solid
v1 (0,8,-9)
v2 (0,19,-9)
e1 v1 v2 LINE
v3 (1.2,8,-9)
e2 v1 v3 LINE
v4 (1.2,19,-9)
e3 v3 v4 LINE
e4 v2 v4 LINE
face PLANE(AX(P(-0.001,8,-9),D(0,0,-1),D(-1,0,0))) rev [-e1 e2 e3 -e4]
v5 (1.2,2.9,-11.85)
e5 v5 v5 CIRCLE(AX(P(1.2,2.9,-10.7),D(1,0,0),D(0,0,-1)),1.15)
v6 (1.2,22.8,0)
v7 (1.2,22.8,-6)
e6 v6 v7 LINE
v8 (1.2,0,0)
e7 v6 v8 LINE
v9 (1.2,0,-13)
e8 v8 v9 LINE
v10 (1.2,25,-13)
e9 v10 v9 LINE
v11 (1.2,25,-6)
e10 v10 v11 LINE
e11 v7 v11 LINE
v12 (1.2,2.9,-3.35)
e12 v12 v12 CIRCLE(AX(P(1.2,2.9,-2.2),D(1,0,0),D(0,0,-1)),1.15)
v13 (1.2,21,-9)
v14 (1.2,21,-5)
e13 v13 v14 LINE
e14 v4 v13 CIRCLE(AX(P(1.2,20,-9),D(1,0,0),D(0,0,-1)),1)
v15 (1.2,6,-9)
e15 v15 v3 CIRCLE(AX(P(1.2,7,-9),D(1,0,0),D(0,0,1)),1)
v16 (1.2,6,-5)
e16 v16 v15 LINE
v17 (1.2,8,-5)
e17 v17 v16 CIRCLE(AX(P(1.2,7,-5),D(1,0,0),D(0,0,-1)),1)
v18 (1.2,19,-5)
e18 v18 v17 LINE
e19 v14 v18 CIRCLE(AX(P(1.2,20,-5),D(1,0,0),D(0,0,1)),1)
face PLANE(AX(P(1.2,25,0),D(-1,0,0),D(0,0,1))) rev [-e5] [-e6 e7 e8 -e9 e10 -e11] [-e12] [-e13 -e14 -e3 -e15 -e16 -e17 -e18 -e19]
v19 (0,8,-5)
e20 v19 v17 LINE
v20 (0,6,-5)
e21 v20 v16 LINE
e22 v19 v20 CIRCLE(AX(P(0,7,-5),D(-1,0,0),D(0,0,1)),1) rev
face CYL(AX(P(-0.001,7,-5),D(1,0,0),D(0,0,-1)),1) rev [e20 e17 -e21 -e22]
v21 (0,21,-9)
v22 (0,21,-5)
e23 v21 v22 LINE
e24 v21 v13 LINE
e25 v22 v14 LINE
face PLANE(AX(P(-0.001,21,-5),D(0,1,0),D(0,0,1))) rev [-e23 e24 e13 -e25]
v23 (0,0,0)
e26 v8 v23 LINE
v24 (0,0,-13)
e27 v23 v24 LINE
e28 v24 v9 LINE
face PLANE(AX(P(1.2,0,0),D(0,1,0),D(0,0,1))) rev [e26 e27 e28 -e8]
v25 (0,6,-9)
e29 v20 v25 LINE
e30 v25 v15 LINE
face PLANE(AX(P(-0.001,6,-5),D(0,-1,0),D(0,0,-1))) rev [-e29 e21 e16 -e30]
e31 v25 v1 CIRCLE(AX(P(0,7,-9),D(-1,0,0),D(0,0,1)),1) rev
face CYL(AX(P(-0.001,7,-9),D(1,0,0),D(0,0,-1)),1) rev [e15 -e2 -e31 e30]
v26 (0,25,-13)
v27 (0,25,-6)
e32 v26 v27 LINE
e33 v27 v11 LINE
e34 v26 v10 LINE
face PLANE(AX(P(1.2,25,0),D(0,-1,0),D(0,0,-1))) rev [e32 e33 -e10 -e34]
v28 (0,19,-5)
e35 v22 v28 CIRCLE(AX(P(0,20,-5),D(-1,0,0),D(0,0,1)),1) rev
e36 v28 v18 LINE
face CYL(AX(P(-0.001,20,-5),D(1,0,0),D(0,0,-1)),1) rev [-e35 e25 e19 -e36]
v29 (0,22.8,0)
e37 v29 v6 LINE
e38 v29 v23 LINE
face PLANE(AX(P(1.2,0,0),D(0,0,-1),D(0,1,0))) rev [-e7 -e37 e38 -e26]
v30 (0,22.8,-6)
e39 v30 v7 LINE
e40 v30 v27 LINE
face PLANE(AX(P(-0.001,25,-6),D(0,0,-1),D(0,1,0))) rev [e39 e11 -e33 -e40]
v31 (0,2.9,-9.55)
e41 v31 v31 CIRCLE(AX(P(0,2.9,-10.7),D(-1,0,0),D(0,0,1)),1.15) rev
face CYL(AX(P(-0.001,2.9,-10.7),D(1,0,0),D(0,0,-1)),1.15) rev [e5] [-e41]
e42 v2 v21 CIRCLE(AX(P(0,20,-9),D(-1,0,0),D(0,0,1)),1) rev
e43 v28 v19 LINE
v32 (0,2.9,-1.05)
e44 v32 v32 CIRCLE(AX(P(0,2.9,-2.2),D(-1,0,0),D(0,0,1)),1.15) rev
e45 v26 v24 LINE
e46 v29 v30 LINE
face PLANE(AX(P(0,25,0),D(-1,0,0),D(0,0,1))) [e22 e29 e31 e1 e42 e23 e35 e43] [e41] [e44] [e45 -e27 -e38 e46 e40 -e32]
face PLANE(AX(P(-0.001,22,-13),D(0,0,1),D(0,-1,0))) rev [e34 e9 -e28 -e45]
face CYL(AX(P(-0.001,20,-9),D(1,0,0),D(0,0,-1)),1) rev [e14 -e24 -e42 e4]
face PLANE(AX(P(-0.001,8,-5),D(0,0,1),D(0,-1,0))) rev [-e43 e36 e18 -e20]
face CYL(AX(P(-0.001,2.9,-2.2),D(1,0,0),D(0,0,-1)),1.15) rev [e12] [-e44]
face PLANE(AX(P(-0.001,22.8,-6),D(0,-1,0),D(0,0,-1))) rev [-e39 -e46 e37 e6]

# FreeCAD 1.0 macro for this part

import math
import FreeCAD as App
import Part
import Sketcher
from FreeCAD import Vector


def add_polygon(sketch, points):
    """Adds a closed chain of lines whose ends are joined by coincident constraints."""
    first, n = sketch.GeometryCount, len(points)
    for a, b in zip(points, points[1:] + points[:1]):
        sketch.addGeometry(Part.LineSegment(App.Vector(*a, 0), App.Vector(*b, 0)), False)
    for i in range(n):
        sketch.addConstraint(Sketcher.Constraint("Coincident", first + i, 2, first + (i + 1) % n, 1))

doc = App.newDocument("Part")
body = doc.addObject("PartDesign::Body", "Body")

sketch1 = doc.addObject("Sketcher::SketchObject", "Sketch")
body.addObject(sketch1)
sketch1.AttachmentSupport = (doc.YZ_Plane, [""])
sketch1.MapMode = "FlatFace"
add_polygon(sketch1, [(25, 0), (0, 0), (0, -15), (25, -15)])
sketch1.addConstraint(Sketcher.Constraint("Horizontal", 0))
sketch1.addConstraint(Sketcher.Constraint("Vertical", 1))
sketch1.addConstraint(Sketcher.Constraint("Horizontal", 2))
sketch1.addConstraint(Sketcher.Constraint("Vertical", 3))
sketch1.addConstraint(Sketcher.Constraint("Coincident", 0, 2, -1, 1))
sketch1.addConstraint(Sketcher.Constraint("DistanceX", 0, 2, 0, 1, 25.0))
sketch1.addConstraint(Sketcher.Constraint("DistanceY", 1, 2, 1, 1, 15.0))
pad1 = doc.addObject("PartDesign::Pad", "Pad")
body.addObject(pad1)
pad1.Profile = sketch1
pad1.Length = 1.2

sketch2 = doc.addObject("Sketcher::SketchObject", "Sketch001")
body.addObject(sketch2)
sketch2.AttachmentSupport = (doc.YZ_Plane, [""])
sketch2.MapMode = "FlatFace"
sketch2.AttachmentOffset = App.Placement(Vector(0, 0, 1.2), App.Rotation())
sketch2.addGeometry(Part.Circle(Vector(2.9, -10.7, 0), Vector(0, 0, 1), 1.1), False)
sketch2.addConstraint(Sketcher.Constraint("Diameter", 0, 2.3))
sketch2.addConstraint(Sketcher.Constraint("DistanceX", -1, 1, 0, 3, 2.9))
sketch2.addConstraint(Sketcher.Constraint("DistanceY", 0, 3, -1, 1, 10.7))
pocket1 = doc.addObject("PartDesign::Pocket", "Pocket")
body.addObject(pocket1)
pocket1.Profile = sketch2
pocket1.Type = "UpToFirst"

sketch3 = doc.addObject("Sketcher::SketchObject", "Sketch002")
body.addObject(sketch3)
sketch3.AttachmentSupport = (doc.YZ_Plane, [""])
sketch3.MapMode = "FlatFace"
sketch3.AttachmentOffset = App.Placement(Vector(0, 0, 1.2), App.Rotation())
sketch3.addGeometry(Part.Circle(Vector(2.9, -2.2, 0), Vector(0, 0, 1), 1.1), False)
sketch3.addConstraint(Sketcher.Constraint("Diameter", 0, 2.3))
sketch3.addConstraint(Sketcher.Constraint("DistanceX", -1, 1, 0, 3, 2.9))
sketch3.addConstraint(Sketcher.Constraint("DistanceY", 0, 3, -1, 1, 2.2))
pocket2 = doc.addObject("PartDesign::Pocket", "Pocket001")
body.addObject(pocket2)
pocket2.Profile = sketch3
pocket2.Type = "UpToFirst"

sketch4 = doc.addObject("Sketcher::SketchObject", "Sketch003")
body.addObject(sketch4)
sketch4.AttachmentSupport = (doc.YZ_Plane, [""])
sketch4.MapMode = "FlatFace"
sketch4.AttachmentOffset = App.Placement(Vector(0, 0, 1.2), App.Rotation())
add_polygon(sketch4, [(25, 0), (22.8, 0), (22.8, -6), (25, -6)])
sketch4.addConstraint(Sketcher.Constraint("Horizontal", 0))
sketch4.addConstraint(Sketcher.Constraint("Vertical", 1))
sketch4.addConstraint(Sketcher.Constraint("Horizontal", 2))
sketch4.addConstraint(Sketcher.Constraint("Vertical", 3))
sketch4.addConstraint(Sketcher.Constraint("PointOnObject", 0, 2, -1))
sketch4.addConstraint(Sketcher.Constraint("DistanceY", 1, 2, 1, 1, 6.0))
sketch4.addConstraint(Sketcher.Constraint("DistanceX", 0, 2, 0, 1, 2.2))
sketch4.addConstraint(Sketcher.Constraint("DistanceX", -1, 1, 2, 2, 25.0))
pocket3 = doc.addObject("PartDesign::Pocket", "Pocket002")
body.addObject(pocket3)
pocket3.Profile = sketch4
pocket3.Type = "UpToFirst"

sketch5 = doc.addObject("Sketcher::SketchObject", "Sketch004")
body.addObject(sketch5)
sketch5.AttachmentSupport = (doc.YZ_Plane, [""])
sketch5.MapMode = "FlatFace"
sketch5.AttachmentOffset = App.Placement(Vector(0, 0, 1.2), App.Rotation())
sketch5.addGeometry(Part.LineSegment(Vector(6, -5, 0), Vector(6, -9, 0)), False)
sketch5.addGeometry(Part.ArcOfCircle(Part.Circle(Vector(7, -9, 0), Vector(0, 0, 1), 1), math.radians(180), math.radians(360)), False)
sketch5.addGeometry(Part.LineSegment(Vector(8, -9, 0), Vector(19, -9, 0)), False)
sketch5.addGeometry(Part.ArcOfCircle(Part.Circle(Vector(20, -9, 0), Vector(0, 0, 1), 1), math.radians(180), math.radians(360)), False)
sketch5.addGeometry(Part.LineSegment(Vector(21, -9, 0), Vector(21, -5, 0)), False)
sketch5.addGeometry(Part.ArcOfCircle(Part.Circle(Vector(20, -5, 0), Vector(0, 0, 1), 1), math.radians(0), math.radians(180)), False)
sketch5.addGeometry(Part.LineSegment(Vector(19, -5, 0), Vector(8, -5, 0)), False)
sketch5.addGeometry(Part.ArcOfCircle(Part.Circle(Vector(7, -5, 0), Vector(0, 0, 1), 1), math.radians(0), math.radians(180)), False)
sketch5.addConstraint(Sketcher.Constraint("Tangent", 0, 2, 1, 1))
sketch5.addConstraint(Sketcher.Constraint("Coincident", 1, 2, 2, 1))
sketch5.addConstraint(Sketcher.Constraint("Coincident", 2, 2, 3, 1))
sketch5.addConstraint(Sketcher.Constraint("Tangent", 3, 2, 4, 1))
sketch5.addConstraint(Sketcher.Constraint("Tangent", 4, 2, 5, 1))
sketch5.addConstraint(Sketcher.Constraint("Coincident", 5, 2, 6, 1))
sketch5.addConstraint(Sketcher.Constraint("Coincident", 6, 2, 7, 1))
sketch5.addConstraint(Sketcher.Constraint("Tangent", 7, 2, 0, 1))
sketch5.addConstraint(Sketcher.Constraint("Vertical", 0))
sketch5.addConstraint(Sketcher.Constraint("Horizontal", 2))
sketch5.addConstraint(Sketcher.Constraint("Vertical", 4))
sketch5.addConstraint(Sketcher.Constraint("Horizontal", 6))
sketch5.addConstraint(Sketcher.Constraint("Equal", 1, 3))
sketch5.addConstraint(Sketcher.Constraint("Equal", 3, 5))
sketch5.addConstraint(Sketcher.Constraint("Equal", 5, 7))
sketch5.addConstraint(Sketcher.Constraint("Horizontal", 1, 3, 3, 3))
sketch5.addConstraint(Sketcher.Constraint("Horizontal", 5, 3, 7, 3))
sketch5.addConstraint(Sketcher.Constraint("Horizontal", 0, 2, 1, 2))
sketch5.addConstraint(Sketcher.Constraint("Horizontal", 4, 2, 5, 2))
sketch5.addConstraint(Sketcher.Constraint("Radius", 1, 1.0))
sketch5.addConstraint(Sketcher.Constraint("DistanceX", 2, 1, 2, 2, 11.0))
sketch5.addConstraint(Sketcher.Constraint("DistanceY", 0, 2, 0, 1, 4.0))
sketch5.addConstraint(Sketcher.Constraint("DistanceX", -1, 1, 1, 3, 7.0))
sketch5.addConstraint(Sketcher.Constraint("DistanceY", 1, 3, -1, 1, 9.0))
pocket4 = doc.addObject("PartDesign::Pocket", "Pocket003")
body.addObject(pocket4)
pocket4.Profile = sketch5
pocket4.Type = "UpToFirst"

sketch6 = doc.addObject("Sketcher::SketchObject", "Sketch005")
body.addObject(sketch6)
sketch6.AttachmentSupport = (doc.YZ_Plane, [""])
sketch6.MapMode = "FlatFace"
sketch6.AttachmentOffset = App.Placement(Vector(0, 0, 1.2), App.Rotation())
add_polygon(sketch6, [(22, -13), (5, -13), (5, -15), (22, -15)])
sketch6.addConstraint(Sketcher.Constraint("Horizontal", 0))
sketch6.addConstraint(Sketcher.Constraint("Vertical", 1))
sketch6.addConstraint(Sketcher.Constraint("Horizontal", 2))
sketch6.addConstraint(Sketcher.Constraint("Vertical", 3))
sketch6.addConstraint(Sketcher.Constraint("DistanceX", 0, 2, 0, 1, 17.0))
sketch6.addConstraint(Sketcher.Constraint("DistanceY", 1, 2, 1, 1, 2.0))
sketch6.addConstraint(Sketcher.Constraint("DistanceX", -1, 1, 0, 2, 5.0))
sketch6.addConstraint(Sketcher.Constraint("DistanceY", 0, 2, -1, 1, 13.0))
pocket5 = doc.addObject("PartDesign::Pocket", "Pocket004")
body.addObject(pocket5)
pocket5.Profile = sketch6
pocket5.Type = "UpToFirst"

sketch7 = doc.addObject("Sketcher::SketchObject", "Sketch006")
body.addObject(sketch7)
sketch7.AttachmentSupport = (doc.YZ_Plane, [""])
sketch7.MapMode = "FlatFace"
sketch7.AttachmentOffset = App.Placement(Vector(0, 0, 1.2), App.Rotation())
add_polygon(sketch7, [(5, -13), (0, -13), (0, -15), (5, -15)])
sketch7.addConstraint(Sketcher.Constraint("Horizontal", 0))
sketch7.addConstraint(Sketcher.Constraint("Vertical", 1))
sketch7.addConstraint(Sketcher.Constraint("Horizontal", 2))
sketch7.addConstraint(Sketcher.Constraint("Vertical", 3))
sketch7.addConstraint(Sketcher.Constraint("PointOnObject", 0, 2, -2))
sketch7.addConstraint(Sketcher.Constraint("DistanceX", 0, 2, 0, 1, 5.0))
sketch7.addConstraint(Sketcher.Constraint("DistanceY", 1, 2, 1, 1, 2.0))
sketch7.addConstraint(Sketcher.Constraint("DistanceY", 0, 2, -1, 1, 13.0))
pocket6 = doc.addObject("PartDesign::Pocket", "Pocket005")
body.addObject(pocket6)
pocket6.Profile = sketch7
pocket6.Type = "ThroughAll"

sketch8 = doc.addObject("Sketcher::SketchObject", "Sketch007")
body.addObject(sketch8)
sketch8.AttachmentSupport = (doc.YZ_Plane, [""])
sketch8.MapMode = "FlatFace"
sketch8.AttachmentOffset = App.Placement(Vector(0, 0, 1.2), App.Rotation())
add_polygon(sketch8, [(25, -13), (22, -13), (22, -15), (25, -15)])
sketch8.addConstraint(Sketcher.Constraint("Horizontal", 0))
sketch8.addConstraint(Sketcher.Constraint("Vertical", 1))
sketch8.addConstraint(Sketcher.Constraint("Horizontal", 2))
sketch8.addConstraint(Sketcher.Constraint("Vertical", 3))
sketch8.addConstraint(Sketcher.Constraint("DistanceX", 0, 2, 0, 1, 3.0))
sketch8.addConstraint(Sketcher.Constraint("DistanceY", 1, 2, 1, 1, 2.0))
sketch8.addConstraint(Sketcher.Constraint("DistanceX", -1, 1, 0, 2, 22.0))
sketch8.addConstraint(Sketcher.Constraint("DistanceY", 0, 2, -1, 1, 13.0))
pocket7 = doc.addObject("PartDesign::Pocket", "Pocket006")
body.addObject(pocket7)
pocket7.Profile = sketch8
pocket7.Type = "ThroughAll"

doc.recompute()
